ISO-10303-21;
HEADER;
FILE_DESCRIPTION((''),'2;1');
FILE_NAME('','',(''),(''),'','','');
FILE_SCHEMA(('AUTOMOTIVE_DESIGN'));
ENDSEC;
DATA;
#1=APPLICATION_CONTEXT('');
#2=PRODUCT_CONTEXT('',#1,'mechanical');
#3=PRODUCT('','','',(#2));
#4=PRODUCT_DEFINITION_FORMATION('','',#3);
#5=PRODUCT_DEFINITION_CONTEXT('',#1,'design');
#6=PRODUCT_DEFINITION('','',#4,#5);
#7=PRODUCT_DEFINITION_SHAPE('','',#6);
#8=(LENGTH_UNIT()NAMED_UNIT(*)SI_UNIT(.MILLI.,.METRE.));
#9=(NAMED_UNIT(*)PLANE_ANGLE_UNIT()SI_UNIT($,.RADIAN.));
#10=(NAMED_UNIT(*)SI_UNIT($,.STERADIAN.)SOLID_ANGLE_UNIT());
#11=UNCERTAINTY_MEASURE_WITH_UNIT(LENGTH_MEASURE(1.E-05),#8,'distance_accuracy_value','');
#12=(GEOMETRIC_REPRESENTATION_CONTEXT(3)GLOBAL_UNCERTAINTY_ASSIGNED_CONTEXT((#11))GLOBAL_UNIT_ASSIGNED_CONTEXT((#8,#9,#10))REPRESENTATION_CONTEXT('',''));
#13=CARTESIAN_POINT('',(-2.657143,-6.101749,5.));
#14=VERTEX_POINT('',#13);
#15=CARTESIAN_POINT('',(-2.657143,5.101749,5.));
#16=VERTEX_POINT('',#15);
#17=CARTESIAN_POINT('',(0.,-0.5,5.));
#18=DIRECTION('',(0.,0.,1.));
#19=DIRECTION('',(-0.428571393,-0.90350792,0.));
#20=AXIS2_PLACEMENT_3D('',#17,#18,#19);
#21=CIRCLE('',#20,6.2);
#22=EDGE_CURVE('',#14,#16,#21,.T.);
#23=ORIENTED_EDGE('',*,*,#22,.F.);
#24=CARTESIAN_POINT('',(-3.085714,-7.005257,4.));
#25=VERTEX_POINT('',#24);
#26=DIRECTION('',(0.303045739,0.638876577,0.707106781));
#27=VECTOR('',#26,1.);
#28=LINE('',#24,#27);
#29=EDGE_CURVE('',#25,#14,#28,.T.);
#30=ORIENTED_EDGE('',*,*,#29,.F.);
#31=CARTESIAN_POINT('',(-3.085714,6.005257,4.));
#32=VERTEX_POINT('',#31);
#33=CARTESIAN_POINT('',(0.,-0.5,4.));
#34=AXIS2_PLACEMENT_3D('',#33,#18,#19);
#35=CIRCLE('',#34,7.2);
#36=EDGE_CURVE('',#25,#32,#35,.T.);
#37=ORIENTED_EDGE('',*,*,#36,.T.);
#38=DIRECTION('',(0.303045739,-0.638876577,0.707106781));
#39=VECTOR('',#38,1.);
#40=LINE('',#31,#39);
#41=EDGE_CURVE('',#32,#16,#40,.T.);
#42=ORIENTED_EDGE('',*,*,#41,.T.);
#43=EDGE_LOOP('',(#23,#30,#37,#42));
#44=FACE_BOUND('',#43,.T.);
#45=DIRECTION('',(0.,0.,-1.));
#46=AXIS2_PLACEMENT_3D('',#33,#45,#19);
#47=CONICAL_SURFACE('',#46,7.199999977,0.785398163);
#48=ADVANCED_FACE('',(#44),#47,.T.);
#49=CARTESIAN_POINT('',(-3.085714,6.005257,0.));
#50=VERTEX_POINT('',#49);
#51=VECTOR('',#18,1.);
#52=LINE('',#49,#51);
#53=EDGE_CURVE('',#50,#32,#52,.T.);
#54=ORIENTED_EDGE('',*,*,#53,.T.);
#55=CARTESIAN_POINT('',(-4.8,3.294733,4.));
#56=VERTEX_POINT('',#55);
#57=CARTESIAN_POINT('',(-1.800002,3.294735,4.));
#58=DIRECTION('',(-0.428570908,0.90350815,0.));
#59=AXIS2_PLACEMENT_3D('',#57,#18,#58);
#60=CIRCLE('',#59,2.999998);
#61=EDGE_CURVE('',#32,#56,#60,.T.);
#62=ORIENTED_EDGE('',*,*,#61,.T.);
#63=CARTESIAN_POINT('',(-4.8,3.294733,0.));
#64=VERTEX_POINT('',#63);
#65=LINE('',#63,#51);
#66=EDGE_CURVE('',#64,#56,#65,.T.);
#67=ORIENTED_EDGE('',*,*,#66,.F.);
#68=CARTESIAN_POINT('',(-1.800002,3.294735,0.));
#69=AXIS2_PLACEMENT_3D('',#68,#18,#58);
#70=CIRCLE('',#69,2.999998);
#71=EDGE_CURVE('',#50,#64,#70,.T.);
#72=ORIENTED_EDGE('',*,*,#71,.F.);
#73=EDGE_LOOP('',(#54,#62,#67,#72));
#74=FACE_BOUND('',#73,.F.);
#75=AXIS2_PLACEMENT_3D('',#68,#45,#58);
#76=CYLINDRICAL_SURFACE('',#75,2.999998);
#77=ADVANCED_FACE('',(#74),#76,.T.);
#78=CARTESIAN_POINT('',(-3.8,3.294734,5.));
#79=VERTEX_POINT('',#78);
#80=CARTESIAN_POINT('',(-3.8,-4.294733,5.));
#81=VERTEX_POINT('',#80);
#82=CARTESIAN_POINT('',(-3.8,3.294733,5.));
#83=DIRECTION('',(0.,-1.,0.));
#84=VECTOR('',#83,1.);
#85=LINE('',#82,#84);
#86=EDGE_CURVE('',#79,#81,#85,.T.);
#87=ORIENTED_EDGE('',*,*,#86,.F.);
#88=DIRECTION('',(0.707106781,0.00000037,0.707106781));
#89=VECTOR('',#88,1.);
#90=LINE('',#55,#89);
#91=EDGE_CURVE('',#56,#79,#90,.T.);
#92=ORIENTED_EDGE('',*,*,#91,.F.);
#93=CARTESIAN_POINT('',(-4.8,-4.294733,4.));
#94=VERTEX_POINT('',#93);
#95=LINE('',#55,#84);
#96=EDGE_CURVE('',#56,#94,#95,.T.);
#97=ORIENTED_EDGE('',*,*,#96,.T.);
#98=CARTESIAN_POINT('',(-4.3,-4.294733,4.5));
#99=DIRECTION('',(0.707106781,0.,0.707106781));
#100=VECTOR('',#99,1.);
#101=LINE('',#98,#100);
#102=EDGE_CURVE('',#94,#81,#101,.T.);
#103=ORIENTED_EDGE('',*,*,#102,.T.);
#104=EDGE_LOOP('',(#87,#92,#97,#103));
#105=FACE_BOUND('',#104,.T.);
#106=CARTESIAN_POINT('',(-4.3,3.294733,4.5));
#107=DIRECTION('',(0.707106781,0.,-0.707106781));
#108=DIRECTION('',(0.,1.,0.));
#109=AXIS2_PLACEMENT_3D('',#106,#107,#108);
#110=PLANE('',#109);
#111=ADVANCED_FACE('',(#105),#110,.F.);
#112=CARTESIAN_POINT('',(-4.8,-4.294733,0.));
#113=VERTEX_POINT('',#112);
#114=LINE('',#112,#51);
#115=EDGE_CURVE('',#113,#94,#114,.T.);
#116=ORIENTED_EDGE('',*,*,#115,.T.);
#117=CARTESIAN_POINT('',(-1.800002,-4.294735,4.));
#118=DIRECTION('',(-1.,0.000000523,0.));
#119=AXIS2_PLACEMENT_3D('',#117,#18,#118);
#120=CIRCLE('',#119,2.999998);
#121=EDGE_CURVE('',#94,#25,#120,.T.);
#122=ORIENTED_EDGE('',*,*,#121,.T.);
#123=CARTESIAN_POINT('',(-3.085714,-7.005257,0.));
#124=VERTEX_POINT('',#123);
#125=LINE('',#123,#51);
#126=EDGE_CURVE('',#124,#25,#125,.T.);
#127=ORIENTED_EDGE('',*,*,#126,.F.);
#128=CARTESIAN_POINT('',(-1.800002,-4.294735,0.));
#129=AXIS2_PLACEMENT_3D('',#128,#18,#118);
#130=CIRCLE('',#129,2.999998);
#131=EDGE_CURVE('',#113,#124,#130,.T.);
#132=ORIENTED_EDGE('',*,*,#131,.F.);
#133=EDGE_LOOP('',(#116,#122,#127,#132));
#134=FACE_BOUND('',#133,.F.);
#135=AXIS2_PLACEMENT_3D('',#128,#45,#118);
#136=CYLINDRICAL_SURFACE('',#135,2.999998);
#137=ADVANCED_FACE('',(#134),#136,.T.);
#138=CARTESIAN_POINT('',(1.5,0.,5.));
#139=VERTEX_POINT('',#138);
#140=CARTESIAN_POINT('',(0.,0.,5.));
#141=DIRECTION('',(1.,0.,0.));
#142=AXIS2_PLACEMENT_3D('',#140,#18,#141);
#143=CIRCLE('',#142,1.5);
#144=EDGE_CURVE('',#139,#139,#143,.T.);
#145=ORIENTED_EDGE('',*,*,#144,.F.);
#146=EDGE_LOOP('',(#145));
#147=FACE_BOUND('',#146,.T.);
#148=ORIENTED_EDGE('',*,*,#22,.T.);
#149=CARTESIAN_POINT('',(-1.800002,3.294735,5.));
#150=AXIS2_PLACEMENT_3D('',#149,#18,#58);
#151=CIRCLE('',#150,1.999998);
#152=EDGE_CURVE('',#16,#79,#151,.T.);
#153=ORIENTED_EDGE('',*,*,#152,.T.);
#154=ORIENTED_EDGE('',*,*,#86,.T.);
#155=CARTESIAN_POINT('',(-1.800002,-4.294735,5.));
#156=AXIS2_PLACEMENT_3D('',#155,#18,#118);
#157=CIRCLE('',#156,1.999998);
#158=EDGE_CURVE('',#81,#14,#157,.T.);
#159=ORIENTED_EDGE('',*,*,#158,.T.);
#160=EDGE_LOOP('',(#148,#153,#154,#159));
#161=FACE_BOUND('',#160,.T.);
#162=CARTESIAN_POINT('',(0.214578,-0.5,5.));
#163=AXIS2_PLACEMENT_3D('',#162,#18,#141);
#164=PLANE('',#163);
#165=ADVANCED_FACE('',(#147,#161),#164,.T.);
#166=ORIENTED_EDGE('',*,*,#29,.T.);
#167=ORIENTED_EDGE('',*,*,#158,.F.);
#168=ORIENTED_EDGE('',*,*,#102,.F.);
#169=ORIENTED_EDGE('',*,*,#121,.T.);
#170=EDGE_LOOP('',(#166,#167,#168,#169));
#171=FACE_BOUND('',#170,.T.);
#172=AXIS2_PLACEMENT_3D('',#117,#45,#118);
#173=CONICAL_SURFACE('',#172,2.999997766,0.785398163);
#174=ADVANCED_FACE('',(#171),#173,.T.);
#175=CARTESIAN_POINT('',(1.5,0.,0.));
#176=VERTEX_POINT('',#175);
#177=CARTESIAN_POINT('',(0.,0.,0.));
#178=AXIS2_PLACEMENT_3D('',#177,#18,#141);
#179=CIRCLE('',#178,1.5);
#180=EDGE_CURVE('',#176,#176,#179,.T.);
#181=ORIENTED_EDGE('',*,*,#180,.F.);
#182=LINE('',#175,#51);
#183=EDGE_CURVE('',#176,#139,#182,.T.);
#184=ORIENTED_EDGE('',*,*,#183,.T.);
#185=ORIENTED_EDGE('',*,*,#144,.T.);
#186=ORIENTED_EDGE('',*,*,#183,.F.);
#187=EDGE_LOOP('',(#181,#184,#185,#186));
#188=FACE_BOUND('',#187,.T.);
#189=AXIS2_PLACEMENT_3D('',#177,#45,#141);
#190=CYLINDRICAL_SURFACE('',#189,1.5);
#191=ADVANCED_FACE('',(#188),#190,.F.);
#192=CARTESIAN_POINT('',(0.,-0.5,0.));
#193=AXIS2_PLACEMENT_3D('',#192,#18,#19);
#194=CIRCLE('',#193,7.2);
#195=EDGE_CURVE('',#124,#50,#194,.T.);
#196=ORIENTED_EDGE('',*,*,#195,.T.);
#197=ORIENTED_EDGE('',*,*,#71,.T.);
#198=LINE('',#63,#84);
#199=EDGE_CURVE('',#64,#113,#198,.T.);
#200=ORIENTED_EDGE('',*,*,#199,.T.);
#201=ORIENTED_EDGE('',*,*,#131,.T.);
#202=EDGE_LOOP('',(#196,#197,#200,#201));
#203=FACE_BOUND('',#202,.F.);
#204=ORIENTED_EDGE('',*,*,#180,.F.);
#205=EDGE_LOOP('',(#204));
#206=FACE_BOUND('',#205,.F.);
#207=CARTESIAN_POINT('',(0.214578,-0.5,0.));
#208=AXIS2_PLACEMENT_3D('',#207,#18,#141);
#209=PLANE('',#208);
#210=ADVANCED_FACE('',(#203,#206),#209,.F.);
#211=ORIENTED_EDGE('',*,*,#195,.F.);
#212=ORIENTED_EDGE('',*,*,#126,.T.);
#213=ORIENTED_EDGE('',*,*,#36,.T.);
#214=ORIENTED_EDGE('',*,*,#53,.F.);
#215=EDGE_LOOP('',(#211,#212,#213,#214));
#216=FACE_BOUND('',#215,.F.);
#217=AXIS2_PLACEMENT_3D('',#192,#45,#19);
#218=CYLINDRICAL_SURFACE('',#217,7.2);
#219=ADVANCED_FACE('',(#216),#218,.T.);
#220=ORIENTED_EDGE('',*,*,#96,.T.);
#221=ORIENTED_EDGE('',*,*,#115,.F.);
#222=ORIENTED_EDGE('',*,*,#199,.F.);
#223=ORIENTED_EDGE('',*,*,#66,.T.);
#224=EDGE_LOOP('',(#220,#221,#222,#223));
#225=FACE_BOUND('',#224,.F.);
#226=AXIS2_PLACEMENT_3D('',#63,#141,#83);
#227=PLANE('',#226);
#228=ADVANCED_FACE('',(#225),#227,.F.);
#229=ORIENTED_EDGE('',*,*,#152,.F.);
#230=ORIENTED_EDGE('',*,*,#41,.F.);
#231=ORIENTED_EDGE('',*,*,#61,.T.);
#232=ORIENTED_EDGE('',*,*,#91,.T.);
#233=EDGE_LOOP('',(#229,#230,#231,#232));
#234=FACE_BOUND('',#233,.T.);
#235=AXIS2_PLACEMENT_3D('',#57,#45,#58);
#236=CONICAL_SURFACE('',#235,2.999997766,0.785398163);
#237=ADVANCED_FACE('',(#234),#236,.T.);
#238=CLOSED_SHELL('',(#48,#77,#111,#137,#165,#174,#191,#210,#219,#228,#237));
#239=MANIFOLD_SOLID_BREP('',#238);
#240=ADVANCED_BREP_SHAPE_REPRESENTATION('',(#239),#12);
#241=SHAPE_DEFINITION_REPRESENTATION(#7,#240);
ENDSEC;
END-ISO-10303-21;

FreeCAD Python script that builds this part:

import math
import FreeCAD as App
import Part
import Sketcher

V = App.Vector


def edges_at(feature, points):
    """Names of the edges that pass closest to the given points."""
    edges = feature.Shape.Edges
    near = lambda p: min(range(len(edges)), key=lambda i: edges[i].distToShape(Part.Vertex(*p))[0])
    return sorted({f"Edge{near(p) + 1}" for p in points})

doc = App.newDocument("Part")
body = doc.addObject("PartDesign::Body", "Body")

# Sketch on XY plane
sketch1 = body.newObject("Sketcher::SketchObject", "Sketch")
sketch1.AttachmentSupport = (doc.getObject("XY_Plane"), [""])
sketch1.MapMode = "FlatFace"
sketch1.addGeometry([
    Part.ArcOfCircle(Part.Circle(V(-1.800002, -4.294735, 0), V(0, 0, 1), 2.999998), math.radians(179.99997), math.radians(244.6231)),  # 0
    Part.ArcOfCircle(Part.Circle(V(0, -0.5, 0), V(0, 0, 1), 7.2), math.radians(-115.376931), math.radians(115.376931)),  # 1
    Part.ArcOfCircle(Part.Circle(V(-1.800002, 3.294735, 0), V(0, 0, 1), 2.999998), math.radians(115.3769), math.radians(180.00003)),  # 2
    Part.LineSegment(V(-4.8, 3.294733, 0), V(-4.8, -4.294733, 0)),  # 3
    Part.Circle(V(0, 0, 0), V(0, 0, 1), 1.5),  # 4
], False)
sketch1.addConstraint([
    Sketcher.Constraint("Tangent", 0, 2, 1, 1),
    Sketcher.Constraint("Tangent", 1, 2, 2, 1),
    Sketcher.Constraint("Tangent", 2, 2, 3, 1),
    Sketcher.Constraint("Tangent", 3, 2, 0, 1),
    Sketcher.Constraint("Vertical", 3),
    Sketcher.Constraint("Coincident", 4, 3, -1, 1),
    Sketcher.Constraint("Equal", 0, 2),
    Sketcher.Constraint("PointOnObject", 1, 3, -2),
    Sketcher.Constraint("Diameter", 4, 3.0),
    Sketcher.Constraint("Radius", 1, 7.2),
    Sketcher.Constraint("DistanceY", 1, 3, -1, 1, 0.5),
    Sketcher.Constraint("DistanceX", 2, 2, -1, 1, 4.8),
    Sketcher.Constraint("Radius", 0, 2.999998),
])
pad1 = body.newObject("PartDesign::Pad", "Pad")
pad1.Profile = sketch1
pad1.Length = 5
doc.recompute()

chamfer = body.newObject("PartDesign::Chamfer", "Chamfer")
chamfer.Base = (pad1, edges_at(pad1, [(7.2, -0.5, 5)]))
chamfer.Size = 1

doc.recompute()
